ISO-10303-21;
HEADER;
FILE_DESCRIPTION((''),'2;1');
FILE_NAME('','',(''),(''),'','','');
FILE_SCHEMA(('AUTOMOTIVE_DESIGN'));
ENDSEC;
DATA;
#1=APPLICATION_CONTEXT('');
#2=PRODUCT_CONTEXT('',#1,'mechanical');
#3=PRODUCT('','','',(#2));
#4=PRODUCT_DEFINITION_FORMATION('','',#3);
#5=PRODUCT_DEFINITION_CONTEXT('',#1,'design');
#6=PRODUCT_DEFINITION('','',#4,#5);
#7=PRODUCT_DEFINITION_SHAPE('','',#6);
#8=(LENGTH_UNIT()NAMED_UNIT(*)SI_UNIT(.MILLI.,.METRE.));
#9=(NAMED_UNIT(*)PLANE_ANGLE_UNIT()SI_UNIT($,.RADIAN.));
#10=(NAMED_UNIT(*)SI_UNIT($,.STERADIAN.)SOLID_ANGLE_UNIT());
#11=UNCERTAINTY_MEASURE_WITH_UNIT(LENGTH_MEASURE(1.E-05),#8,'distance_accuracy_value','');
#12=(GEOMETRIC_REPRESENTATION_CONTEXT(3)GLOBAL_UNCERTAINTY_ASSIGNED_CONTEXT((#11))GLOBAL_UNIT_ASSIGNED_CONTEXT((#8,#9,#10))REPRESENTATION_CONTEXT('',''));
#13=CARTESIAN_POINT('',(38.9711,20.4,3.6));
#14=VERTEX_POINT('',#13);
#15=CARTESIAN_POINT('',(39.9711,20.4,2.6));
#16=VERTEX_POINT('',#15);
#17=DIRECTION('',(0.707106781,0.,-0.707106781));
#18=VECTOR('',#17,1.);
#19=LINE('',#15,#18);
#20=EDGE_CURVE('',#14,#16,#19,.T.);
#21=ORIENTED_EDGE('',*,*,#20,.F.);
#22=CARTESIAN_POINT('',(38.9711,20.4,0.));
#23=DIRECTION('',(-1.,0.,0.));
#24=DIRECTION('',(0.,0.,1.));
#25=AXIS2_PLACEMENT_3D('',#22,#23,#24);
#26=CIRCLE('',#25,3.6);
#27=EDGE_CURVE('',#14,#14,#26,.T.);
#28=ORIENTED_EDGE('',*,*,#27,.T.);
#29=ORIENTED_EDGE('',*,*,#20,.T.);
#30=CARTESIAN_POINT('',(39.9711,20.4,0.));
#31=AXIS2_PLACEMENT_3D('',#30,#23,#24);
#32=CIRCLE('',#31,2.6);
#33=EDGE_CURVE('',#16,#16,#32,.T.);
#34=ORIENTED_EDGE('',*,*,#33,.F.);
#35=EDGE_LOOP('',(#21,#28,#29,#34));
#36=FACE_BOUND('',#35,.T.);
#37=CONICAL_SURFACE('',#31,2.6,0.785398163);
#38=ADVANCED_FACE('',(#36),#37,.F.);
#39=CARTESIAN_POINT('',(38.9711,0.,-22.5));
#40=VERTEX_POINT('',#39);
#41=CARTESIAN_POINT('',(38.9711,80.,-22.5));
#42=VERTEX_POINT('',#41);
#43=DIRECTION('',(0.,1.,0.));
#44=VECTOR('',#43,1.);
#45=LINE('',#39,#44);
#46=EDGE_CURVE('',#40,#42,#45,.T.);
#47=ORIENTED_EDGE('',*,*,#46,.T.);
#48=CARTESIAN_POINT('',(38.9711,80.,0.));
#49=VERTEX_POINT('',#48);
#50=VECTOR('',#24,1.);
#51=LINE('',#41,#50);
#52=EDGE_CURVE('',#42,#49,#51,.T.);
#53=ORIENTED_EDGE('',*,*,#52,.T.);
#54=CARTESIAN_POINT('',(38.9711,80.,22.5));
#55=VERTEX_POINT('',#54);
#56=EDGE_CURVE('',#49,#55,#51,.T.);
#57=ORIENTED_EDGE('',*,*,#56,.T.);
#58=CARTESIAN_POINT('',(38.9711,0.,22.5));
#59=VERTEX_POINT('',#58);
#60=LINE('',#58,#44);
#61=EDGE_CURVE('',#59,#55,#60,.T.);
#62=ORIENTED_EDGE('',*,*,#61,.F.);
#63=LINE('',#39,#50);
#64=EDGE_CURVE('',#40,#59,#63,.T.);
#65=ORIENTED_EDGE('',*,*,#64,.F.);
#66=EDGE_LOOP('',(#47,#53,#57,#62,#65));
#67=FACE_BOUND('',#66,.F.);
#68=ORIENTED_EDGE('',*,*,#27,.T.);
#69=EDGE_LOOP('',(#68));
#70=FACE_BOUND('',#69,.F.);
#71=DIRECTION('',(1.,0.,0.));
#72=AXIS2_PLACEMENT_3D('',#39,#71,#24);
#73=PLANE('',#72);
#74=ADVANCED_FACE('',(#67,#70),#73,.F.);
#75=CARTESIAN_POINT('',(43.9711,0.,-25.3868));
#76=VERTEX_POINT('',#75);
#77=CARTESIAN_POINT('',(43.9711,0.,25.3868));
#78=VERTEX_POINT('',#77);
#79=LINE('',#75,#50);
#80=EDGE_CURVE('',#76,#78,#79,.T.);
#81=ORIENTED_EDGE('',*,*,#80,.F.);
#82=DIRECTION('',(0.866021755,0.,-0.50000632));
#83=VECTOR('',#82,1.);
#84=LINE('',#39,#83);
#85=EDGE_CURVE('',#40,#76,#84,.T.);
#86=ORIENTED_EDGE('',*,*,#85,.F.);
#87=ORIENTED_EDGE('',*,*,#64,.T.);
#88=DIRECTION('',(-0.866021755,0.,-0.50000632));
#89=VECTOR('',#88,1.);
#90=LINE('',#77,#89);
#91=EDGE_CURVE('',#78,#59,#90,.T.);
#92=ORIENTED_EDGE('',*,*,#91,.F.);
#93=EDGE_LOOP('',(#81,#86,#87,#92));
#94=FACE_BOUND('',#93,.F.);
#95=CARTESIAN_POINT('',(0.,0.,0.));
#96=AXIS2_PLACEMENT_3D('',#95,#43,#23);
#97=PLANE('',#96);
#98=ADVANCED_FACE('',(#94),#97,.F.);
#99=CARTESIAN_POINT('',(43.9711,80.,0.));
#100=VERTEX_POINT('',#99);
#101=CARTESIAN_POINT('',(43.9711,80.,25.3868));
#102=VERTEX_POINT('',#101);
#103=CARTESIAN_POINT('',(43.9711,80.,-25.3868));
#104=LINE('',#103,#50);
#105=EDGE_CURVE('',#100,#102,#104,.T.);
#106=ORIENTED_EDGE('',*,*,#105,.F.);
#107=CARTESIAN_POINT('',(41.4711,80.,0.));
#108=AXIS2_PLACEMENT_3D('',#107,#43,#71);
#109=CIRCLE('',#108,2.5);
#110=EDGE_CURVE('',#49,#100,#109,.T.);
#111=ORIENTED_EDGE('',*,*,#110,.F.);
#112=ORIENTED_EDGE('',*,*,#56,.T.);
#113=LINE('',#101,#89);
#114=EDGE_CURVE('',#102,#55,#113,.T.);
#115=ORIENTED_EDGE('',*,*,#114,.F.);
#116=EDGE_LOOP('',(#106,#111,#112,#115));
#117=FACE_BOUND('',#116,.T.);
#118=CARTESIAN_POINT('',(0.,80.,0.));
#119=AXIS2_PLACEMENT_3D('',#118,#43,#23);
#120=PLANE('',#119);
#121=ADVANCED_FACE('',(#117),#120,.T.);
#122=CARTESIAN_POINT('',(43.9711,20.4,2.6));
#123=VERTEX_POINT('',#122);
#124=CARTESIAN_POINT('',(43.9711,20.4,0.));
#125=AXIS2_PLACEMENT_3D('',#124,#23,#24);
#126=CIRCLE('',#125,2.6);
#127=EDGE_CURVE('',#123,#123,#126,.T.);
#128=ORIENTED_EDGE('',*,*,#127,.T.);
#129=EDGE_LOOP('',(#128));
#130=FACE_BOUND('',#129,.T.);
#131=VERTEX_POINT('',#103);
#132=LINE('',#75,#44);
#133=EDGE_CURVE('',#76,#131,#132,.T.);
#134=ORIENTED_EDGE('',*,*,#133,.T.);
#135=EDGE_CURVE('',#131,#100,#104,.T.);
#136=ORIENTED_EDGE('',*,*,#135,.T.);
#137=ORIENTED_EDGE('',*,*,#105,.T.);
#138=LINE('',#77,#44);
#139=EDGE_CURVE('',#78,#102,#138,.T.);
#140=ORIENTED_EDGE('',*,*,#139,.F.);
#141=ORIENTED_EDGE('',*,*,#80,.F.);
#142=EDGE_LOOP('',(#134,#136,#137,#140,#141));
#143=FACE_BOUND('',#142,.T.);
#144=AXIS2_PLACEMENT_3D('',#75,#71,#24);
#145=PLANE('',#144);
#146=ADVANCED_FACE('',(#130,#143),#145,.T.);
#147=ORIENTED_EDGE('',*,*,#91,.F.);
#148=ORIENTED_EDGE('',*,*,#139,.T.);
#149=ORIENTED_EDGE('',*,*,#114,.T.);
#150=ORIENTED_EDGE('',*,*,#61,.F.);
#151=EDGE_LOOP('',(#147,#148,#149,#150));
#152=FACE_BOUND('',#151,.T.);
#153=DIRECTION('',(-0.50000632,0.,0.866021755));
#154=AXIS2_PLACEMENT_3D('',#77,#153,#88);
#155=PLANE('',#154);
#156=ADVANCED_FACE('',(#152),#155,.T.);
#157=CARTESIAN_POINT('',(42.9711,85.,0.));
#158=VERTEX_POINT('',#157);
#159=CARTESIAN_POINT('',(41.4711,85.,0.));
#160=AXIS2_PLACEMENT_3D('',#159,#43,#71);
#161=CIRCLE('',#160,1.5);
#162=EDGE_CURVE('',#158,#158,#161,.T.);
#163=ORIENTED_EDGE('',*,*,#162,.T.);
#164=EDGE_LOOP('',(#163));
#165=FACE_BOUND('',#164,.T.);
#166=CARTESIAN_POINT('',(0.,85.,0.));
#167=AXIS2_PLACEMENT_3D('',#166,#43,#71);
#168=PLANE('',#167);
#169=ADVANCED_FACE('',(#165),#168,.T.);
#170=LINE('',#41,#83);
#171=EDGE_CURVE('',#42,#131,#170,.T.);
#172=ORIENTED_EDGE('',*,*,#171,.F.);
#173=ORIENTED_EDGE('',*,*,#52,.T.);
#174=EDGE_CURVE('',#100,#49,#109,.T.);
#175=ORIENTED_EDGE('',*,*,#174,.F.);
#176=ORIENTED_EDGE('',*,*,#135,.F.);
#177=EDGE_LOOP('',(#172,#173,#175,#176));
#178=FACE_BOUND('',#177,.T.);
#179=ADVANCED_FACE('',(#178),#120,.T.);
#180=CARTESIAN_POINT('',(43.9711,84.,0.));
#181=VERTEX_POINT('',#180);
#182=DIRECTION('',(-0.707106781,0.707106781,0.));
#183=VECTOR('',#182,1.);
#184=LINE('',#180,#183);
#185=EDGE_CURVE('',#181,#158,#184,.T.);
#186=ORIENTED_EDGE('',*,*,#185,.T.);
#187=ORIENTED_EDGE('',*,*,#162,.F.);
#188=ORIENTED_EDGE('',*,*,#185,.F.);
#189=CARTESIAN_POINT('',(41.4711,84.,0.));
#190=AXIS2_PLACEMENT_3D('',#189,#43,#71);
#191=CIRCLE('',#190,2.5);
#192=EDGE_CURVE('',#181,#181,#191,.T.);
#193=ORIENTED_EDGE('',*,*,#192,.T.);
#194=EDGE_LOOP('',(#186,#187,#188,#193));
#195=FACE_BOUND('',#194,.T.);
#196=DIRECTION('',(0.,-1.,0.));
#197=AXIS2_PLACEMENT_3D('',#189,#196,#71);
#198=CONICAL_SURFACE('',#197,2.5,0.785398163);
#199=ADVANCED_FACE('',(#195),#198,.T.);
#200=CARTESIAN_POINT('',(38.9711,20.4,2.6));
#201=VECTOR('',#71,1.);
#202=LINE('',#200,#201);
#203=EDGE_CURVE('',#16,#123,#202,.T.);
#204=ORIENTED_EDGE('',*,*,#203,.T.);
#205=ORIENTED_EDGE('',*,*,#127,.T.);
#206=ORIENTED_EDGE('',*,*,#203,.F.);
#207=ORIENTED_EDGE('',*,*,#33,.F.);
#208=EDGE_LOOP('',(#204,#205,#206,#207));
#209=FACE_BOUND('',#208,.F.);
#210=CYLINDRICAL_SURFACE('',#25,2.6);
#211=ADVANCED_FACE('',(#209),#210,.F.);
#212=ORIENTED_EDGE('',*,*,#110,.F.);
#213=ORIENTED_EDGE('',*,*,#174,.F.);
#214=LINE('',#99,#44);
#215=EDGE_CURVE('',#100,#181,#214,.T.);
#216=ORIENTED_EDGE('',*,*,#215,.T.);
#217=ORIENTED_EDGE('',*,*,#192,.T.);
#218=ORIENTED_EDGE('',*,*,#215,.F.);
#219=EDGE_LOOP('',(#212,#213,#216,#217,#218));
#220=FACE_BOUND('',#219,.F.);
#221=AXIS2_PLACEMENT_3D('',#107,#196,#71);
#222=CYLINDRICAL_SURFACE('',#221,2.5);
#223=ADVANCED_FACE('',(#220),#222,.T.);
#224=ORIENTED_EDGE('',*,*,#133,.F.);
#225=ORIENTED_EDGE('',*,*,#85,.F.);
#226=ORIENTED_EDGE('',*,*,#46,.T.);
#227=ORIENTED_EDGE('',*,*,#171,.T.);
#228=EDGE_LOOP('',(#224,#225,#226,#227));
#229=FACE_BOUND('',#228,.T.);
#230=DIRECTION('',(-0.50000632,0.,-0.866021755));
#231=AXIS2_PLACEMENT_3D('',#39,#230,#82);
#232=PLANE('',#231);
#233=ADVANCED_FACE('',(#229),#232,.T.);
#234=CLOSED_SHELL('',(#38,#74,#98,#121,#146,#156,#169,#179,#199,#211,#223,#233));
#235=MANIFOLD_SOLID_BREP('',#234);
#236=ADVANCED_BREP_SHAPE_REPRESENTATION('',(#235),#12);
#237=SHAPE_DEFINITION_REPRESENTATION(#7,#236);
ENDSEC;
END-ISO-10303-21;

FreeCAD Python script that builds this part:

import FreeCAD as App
import Part
import Sketcher
from FreeCAD import Vector
Q = App.Units.Quantity


def edges_at(feature, points):
    """Names of the edges that pass closest to the given points."""
    edges = feature.Shape.Edges
    near = lambda p: min(range(len(edges)), key=lambda i: edges[i].distToShape(Part.Vertex(*p))[0])
    return sorted({f"Edge{near(p) + 1}" for p in points})


def add_polygon(sketch, points):
    """Adds a closed chain of lines whose ends are joined by coincident constraints."""
    first, n = sketch.GeometryCount, len(points)
    for a, b in zip(points, points[1:] + points[:1]):
        sketch.addGeometry(Part.LineSegment(App.Vector(*a, 0), App.Vector(*b, 0)), False)
    for i in range(n):
        sketch.addConstraint(Sketcher.Constraint("Coincident", first + i, 2, first + (i + 1) % n, 1))

doc = App.newDocument("Part")
body = doc.addObject("PartDesign::Body", "Body")

# Sketch on XZ plane
sketch1 = body.newObject("Sketcher::SketchObject", "Sketch")
sketch1.AttachmentSupport = (doc.getObject("XZ_Plane"), [""])
sketch1.MapMode = "FlatFace"
add_polygon(sketch1, [(39, -22), (39, 22), (44, 25), (44, -25)])  # lines 0-3
sketch1.addConstraint([
    Sketcher.Constraint("Vertical", 0),
    Sketcher.Constraint("Vertical", 2),
    Sketcher.Constraint("Equal", 1, 3),
    Sketcher.Constraint("DistanceY", 0, 1, 0, 2, Q("45 mm")),
    Sketcher.Constraint("DistanceX", 0, 2, 1, 2, Q("5 mm")),
    Sketcher.Constraint("Angle", 1, Q("30.0004 deg")),
    Sketcher.Constraint("DistanceY", -1, 1, 0, 2, Q("22.5 mm")),
    Sketcher.Constraint("DistanceX", -1, 1, 0, 2, Q("38.971 mm")),
])
pad1 = body.newObject("PartDesign::Pad", "Pad")
pad1.Profile = sketch1
pad1.Length = 80
pad1.Reversed = True

# Sketch on YZ plane
sketch2 = body.newObject("Sketcher::SketchObject", "Sketch001")
sketch2.AttachmentSupport = (doc.getObject("YZ_Plane"), [""])
sketch2.MapMode = "FlatFace"
sketch2.AttachmentOffset = App.Placement(Vector(0, 0, 38.9711), App.Rotation())
sketch2.addGeometry(Part.Circle(Vector(20.4, 0, 0), Vector(0, 0, 1), 2.6), False)
sketch2.addConstraint([
    Sketcher.Constraint("PointOnObject", 0, 3, -1),
    Sketcher.Constraint("Diameter", 0, Q("5.2 mm")),
    Sketcher.Constraint("DistanceX", -1, 1, 0, 3, Q("20.4 mm")),
])
pocket1 = body.newObject("PartDesign::Pocket", "Pocket")
pocket1.Profile = sketch2
pocket1.Type = "ThroughAll"
pocket1.Reversed = True

# Sketch on XZ plane
sketch3 = body.newObject("Sketcher::SketchObject", "Sketch002")
sketch3.AttachmentSupport = (doc.getObject("XZ_Plane"), [""])
sketch3.MapMode = "FlatFace"
sketch3.AttachmentOffset = App.Placement(Vector(0, 0, -80), App.Rotation())
sketch3.addGeometry(Part.Circle(Vector(41.5, 0, 0), Vector(0, 0, 1), 2.5), False)
sketch3.addConstraint([
    Sketcher.Constraint("PointOnObject", 0, 3, -1),
    Sketcher.Constraint("Diameter", 0, Q("5 mm")),
    Sketcher.Constraint("DistanceX", -1, 1, 0, 3, Q("41.471 mm")),
])
pad2 = body.newObject("PartDesign::Pad", "Pad001")
pad2.Profile = sketch3
pad2.Length = 5
pad2.Reversed = True
doc.recompute()

chamfer = body.newObject("PartDesign::Chamfer", "Chamfer")
chamfer.Base = (pad2, edges_at(pad2, [(38.971, 85, 0), (38.971, 20.4, -2.6)]))
chamfer.Size = 1

doc.recompute()
